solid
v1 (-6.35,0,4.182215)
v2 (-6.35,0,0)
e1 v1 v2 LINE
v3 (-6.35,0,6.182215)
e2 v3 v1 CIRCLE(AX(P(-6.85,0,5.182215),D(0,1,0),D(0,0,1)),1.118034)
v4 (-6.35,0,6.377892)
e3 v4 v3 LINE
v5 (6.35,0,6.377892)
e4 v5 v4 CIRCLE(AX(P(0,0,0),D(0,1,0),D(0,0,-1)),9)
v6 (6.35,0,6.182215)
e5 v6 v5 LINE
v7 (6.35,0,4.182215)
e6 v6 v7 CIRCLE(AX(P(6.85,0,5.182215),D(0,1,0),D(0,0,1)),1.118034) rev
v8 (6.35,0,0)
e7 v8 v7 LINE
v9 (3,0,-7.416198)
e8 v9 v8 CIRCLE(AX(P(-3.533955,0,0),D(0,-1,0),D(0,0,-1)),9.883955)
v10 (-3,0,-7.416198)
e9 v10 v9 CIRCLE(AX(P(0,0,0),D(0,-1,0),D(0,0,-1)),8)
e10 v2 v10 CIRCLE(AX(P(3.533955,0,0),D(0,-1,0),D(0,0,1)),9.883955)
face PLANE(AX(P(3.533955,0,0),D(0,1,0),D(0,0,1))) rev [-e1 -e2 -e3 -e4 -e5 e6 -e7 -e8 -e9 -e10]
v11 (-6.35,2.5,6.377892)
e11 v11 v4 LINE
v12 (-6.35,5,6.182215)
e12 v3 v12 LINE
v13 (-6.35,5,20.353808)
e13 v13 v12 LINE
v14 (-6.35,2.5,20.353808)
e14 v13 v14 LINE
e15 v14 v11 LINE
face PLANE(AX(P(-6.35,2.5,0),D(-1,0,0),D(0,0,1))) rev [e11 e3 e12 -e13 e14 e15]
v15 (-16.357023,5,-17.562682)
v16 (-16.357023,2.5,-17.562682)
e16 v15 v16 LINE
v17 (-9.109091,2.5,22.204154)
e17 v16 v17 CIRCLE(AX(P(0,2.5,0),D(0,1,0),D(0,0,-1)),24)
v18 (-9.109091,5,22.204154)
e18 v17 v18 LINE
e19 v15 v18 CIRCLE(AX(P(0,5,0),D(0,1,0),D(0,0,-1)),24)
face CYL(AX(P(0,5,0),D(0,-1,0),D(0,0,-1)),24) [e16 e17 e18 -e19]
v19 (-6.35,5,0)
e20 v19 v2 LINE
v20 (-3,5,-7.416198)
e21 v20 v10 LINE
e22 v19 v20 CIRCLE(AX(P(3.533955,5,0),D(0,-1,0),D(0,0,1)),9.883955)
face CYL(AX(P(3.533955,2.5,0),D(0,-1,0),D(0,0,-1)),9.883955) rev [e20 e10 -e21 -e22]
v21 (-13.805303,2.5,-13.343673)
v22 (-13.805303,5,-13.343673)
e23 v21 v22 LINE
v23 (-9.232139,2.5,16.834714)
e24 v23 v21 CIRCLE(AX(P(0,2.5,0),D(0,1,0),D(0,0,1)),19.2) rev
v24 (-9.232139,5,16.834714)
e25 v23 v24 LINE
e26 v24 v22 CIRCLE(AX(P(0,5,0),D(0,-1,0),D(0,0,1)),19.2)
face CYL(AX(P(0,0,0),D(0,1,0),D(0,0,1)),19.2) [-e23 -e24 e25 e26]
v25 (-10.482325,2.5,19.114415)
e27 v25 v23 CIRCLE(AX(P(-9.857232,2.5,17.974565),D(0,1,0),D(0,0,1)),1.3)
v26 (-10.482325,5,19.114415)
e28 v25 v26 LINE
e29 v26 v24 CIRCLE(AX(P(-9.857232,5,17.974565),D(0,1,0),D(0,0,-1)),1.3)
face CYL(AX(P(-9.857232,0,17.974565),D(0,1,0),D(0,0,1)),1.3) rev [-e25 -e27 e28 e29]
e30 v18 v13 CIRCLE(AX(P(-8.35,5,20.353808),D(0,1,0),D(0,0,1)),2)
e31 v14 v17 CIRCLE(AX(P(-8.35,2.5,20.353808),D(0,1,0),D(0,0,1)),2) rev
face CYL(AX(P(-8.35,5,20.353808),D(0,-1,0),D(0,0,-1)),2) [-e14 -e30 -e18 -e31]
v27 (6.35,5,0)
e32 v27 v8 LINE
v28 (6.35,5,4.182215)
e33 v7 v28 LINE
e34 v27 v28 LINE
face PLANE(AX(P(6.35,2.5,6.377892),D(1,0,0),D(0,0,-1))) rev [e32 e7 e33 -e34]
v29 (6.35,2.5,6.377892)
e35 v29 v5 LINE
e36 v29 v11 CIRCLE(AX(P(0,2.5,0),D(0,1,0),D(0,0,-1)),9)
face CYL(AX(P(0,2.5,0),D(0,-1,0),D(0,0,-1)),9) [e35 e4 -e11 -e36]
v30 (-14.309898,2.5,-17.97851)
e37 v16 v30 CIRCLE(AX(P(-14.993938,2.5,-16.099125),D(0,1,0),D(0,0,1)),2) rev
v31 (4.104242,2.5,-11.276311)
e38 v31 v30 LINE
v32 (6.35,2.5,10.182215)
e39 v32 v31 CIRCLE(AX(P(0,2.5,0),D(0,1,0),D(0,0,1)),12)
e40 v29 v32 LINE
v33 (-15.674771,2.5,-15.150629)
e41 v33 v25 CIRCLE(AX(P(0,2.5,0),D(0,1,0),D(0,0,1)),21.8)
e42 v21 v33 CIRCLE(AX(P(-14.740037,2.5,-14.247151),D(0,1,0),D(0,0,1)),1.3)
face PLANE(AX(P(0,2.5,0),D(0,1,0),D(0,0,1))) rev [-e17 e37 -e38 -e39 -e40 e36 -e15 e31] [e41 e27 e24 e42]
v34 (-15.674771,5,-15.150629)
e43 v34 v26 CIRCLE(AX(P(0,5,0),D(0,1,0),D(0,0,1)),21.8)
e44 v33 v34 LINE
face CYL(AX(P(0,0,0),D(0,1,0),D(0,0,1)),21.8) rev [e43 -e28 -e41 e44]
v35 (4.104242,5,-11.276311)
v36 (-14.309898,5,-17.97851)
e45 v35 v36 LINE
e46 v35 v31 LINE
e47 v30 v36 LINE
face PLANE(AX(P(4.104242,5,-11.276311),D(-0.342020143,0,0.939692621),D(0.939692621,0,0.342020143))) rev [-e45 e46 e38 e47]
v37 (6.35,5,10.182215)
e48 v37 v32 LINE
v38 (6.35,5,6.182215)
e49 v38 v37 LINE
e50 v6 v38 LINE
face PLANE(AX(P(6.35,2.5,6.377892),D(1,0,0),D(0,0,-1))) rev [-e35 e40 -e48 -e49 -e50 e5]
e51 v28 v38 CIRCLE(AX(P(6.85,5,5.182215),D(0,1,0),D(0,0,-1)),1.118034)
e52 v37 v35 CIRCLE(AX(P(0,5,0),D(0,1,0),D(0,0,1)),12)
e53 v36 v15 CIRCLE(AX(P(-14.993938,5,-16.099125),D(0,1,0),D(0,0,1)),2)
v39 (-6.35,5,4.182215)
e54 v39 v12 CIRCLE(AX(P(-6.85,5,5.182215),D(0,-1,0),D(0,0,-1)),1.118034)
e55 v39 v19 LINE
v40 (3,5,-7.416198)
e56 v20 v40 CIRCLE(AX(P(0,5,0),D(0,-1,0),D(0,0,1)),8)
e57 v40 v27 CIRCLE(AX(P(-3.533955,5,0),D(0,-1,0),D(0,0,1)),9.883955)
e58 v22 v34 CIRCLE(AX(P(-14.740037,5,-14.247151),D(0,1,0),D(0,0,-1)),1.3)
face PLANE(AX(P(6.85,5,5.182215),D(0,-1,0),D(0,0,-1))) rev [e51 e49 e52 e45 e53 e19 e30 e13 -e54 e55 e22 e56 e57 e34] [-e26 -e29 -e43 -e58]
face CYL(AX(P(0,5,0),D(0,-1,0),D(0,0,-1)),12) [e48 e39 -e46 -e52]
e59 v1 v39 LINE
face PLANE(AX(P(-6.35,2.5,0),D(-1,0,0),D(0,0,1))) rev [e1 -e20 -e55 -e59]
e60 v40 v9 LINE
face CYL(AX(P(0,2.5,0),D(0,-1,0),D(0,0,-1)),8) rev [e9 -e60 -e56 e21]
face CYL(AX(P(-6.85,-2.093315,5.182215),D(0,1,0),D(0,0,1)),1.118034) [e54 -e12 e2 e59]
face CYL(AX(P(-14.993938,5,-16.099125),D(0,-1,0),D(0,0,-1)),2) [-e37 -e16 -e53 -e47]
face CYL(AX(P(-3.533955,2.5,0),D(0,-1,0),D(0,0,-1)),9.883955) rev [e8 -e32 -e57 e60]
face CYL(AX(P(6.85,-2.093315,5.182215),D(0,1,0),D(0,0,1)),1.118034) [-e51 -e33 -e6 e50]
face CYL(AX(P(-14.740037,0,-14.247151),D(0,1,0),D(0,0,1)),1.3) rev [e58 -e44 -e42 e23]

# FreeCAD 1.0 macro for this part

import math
import FreeCAD as App
import Part
import Sketcher
Q = App.Units.Quantity


def edges_at(feature, points):
    """Names of the edges that pass closest to the given points."""
    edges = feature.Shape.Edges
    near = lambda p: min(range(len(edges)), key=lambda i: edges[i].distToShape(Part.Vertex(*p))[0])
    return sorted({f"Edge{near(p) + 1}" for p in points})

doc = App.newDocument("Part")
body = doc.addObject("PartDesign::Body", "Body")

sketch1 = body.newObject("Sketcher::SketchObject", "Sketch")
sketch1.AttachmentSupport = (doc.getObject("XZ_Plane"), [""])
sketch1.MapMode = "FlatFace"
sketch1.addGeometry([
    Part.LineSegment(App.Vector(-6, 6, 0), App.Vector(-6, 0, 0)),
    Part.ArcOfCircle(Part.Circle(App.Vector(4, 0, 0), App.Vector(0, 0, 1), 10), math.radians(180), math.radians(229)),
    Part.ArcOfCircle(Part.Circle(App.Vector(0, 0, 0), App.Vector(0, 0, 1), 8), math.radians(-112), math.radians(-68)),
    Part.ArcOfCircle(Part.Circle(App.Vector(-4, 0, 0), App.Vector(0, 0, 1), 10), math.radians(-49), math.radians(0)),
    Part.LineSegment(App.Vector(6, 0, 0), App.Vector(6, 6, 0)),
    Part.ArcOfCircle(Part.Circle(App.Vector(0, 0, 0), App.Vector(0, 0, 1), 9), math.radians(135), math.radians(405)),
], False)
sketch1.addConstraint([
    Sketcher.Constraint("Tangent", 0, 2, 1, 1),
    Sketcher.Constraint("Coincident", 1, 2, 2, 1),
    Sketcher.Constraint("Coincident", 2, 2, 3, 1),
    Sketcher.Constraint("Tangent", 3, 2, 4, 1),
    Sketcher.Constraint("Coincident", 4, 2, 5, 2),
    Sketcher.Constraint("Coincident", 5, 1, 0, 1),
    Sketcher.Constraint("Vertical", 0),
    Sketcher.Constraint("Vertical", 4),
    Sketcher.Constraint("Coincident", 2, 3, -1, 1),
    Sketcher.Constraint("Coincident", 5, 3, -1, 1),
    Sketcher.Constraint("Equal", 1, 3),
    Sketcher.Constraint("Symmetric", 1, 3, 3, 3, -1, 1),
    Sketcher.Constraint("PointOnObject", 1, 3, -1),
    Sketcher.Constraint("Radius", 2, 8.0),
    Sketcher.Constraint("Radius", 5, 9.0),
    Sketcher.Constraint("DistanceX", 1, 2, -1, 1, 3.0),
    Sketcher.Constraint("DistanceX", 0, 2, -1, 1, 6.35),
])
pad1 = body.newObject("PartDesign::Pad", "Pad")
pad1.Profile = sketch1
pad1.Length = 2.5
pad1.Reversed = True
body2 = doc.addObject("PartDesign::Body", "Body001")

sketch2 = body2.newObject("Sketcher::SketchObject", "Sketch001")
sketch2.AttachmentSupport = (doc.getObject("XZ_Plane001"), [""])
sketch2.MapMode = "FlatFace"
sketch2.AttachmentOffset = App.Placement(App.Vector(0, 0, -2.5), App.Rotation())
sketch2.addGeometry([
    Part.LineSegment(App.Vector(4, -11, 0), App.Vector(-15, -18, 0)),
    Part.ArcOfCircle(Part.Circle(App.Vector(0, 0, 0), App.Vector(0, 0, 1), 24), math.radians(105), math.radians(230)),
    Part.LineSegment(App.Vector(-6, 23, 0), App.Vector(-6, 0, 0)),
    Part.ArcOfCircle(Part.Circle(App.Vector(4, 0, 0), App.Vector(0, 0, 1), 10), math.radians(180), math.radians(229)),
    Part.ArcOfCircle(Part.Circle(App.Vector(0, 0, 0), App.Vector(0, 0, 1), 8), math.radians(-112), math.radians(-68)),
    Part.ArcOfCircle(Part.Circle(App.Vector(-4, 0, 0), App.Vector(0, 0, 1), 10), math.radians(-49), math.radians(0)),
    Part.LineSegment(App.Vector(6, 0, 0), App.Vector(6, 10, 0)),
    Part.ArcOfCircle(Part.Circle(App.Vector(0, 0, 0), App.Vector(0, 0, 1), 12), math.radians(-70), math.radians(58)),
], False)
sketch2.addConstraint([
    Sketcher.Constraint("Coincident", 0, 2, 1, 2),
    Sketcher.Constraint("Coincident", 1, 1, 2, 1),
    Sketcher.Constraint("Tangent", 2, 2, 3, 1),
    Sketcher.Constraint("Coincident", 3, 2, 4, 1),
    Sketcher.Constraint("Coincident", 4, 2, 5, 1),
    Sketcher.Constraint("Tangent", 5, 2, 6, 1),
    Sketcher.Constraint("Coincident", 6, 2, 7, 2),
    Sketcher.Constraint("Tangent", 7, 1, 0, 1),
    Sketcher.Constraint("Vertical", 2),
    Sketcher.Constraint("Vertical", 6),
    Sketcher.Constraint("Coincident", 1, 3, -1, 1),
    Sketcher.Constraint("Coincident", 4, 3, -1, 1),
    Sketcher.Constraint("Coincident", 7, 3, -1, 1),
    Sketcher.Constraint("Equal", 3, 5),
    Sketcher.Constraint("Symmetric", 3, 3, 5, 3, -1, 1),
    Sketcher.Constraint("PointOnObject", 3, 3, -1),
    Sketcher.Constraint("Radius", 1, 24.0),
    Sketcher.Constraint("Radius", 4, 8.0),
    Sketcher.Constraint("Radius", 7, 12.0),
    Sketcher.Constraint("Angle", 0, Q("-160 deg")),
    Sketcher.Constraint("DistanceX", 3, 2, -1, 1, 3.0),
    Sketcher.Constraint("DistanceX", 1, 1, -1, 1, 6.35),
])
pad2 = body2.newObject("PartDesign::Pad", "Pad001")
pad2.Profile = sketch2
pad2.Length = 2.5
pad2.Reversed = True
doc.recompute()

fillet = body2.newObject("PartDesign::Fillet", "Fillet")
fillet.Base = (pad2, edges_at(pad2, [(-6.35, 3.75, 23.145), (-15.427, 3.75, -18.385)]))
fillet.Radius = 2

sketch3 = body2.newObject("Sketcher::SketchObject", "Sketch002")
sketch3.AttachmentSupport = (doc.getObject("XZ_Plane001"), [""])
sketch3.MapMode = "FlatFace"
sketch3.AttachmentOffset = App.Placement(App.Vector(0, 0, -5), App.Rotation())
sketch3.addGeometry([
    Part.ArcOfCircle(Part.Circle(App.Vector(-9.9, 18, 0), App.Vector(0, 0, 1), 1.3), math.radians(-61), math.radians(119)),
    Part.ArcOfCircle(Part.Circle(App.Vector(0, 0, 0), App.Vector(0, 0, 1), 19.2), math.radians(119), math.radians(224)),
    Part.ArcOfCircle(Part.Circle(App.Vector(-14.7, -14.2, 0), App.Vector(0, 0, 1), 1.3), math.radians(-136), math.radians(44)),
    Part.ArcOfCircle(Part.Circle(App.Vector(0, 0, 0), App.Vector(0, 0, 1), 21.8), math.radians(119), math.radians(224)),
], False)
sketch3.addConstraint([
    Sketcher.Constraint("Tangent", 0, 1, 1, 1),
    Sketcher.Constraint("Tangent", 1, 2, 2, 2),
    Sketcher.Constraint("Tangent", 2, 1, 3, 2),
    Sketcher.Constraint("Tangent", 3, 1, 0, 2),
    Sketcher.Constraint("Coincident", 1, 3, -1, 1),
    Sketcher.Constraint("Coincident", 3, 3, -1, 1),
    Sketcher.Constraint("Radius", 0, 1.3),
    Sketcher.Constraint("Radius", 1, 19.2),
    Sketcher.Constraint("DistanceY", 0, 1, 3, 1, 2.279701),
    Sketcher.Constraint("DistanceY", 2, 3, -1, 1, 14.247151),
])
pocket1 = body2.newObject("PartDesign::Pocket", "Pocket")
pocket1.Profile = sketch3
pocket1.Type = "ThroughAll"
pocket1.Reversed = True
doc.recompute()

boolean = body.newObject("PartDesign::Boolean", "Boolean")
boolean.Type = "Fuse"
boolean.addObjects([body2])

sketch4 = body.newObject("Sketcher::SketchObject", "Sketch003")
sketch4.AttachmentSupport = (doc.getObject("XZ_Plane"), [""])
sketch4.MapMode = "FlatFace"
sketch4.AttachmentOffset = App.Placement(App.Vector(0, 0, -5), App.Rotation())
sketch4.addGeometry([
    Part.LineSegment(App.Vector(6.3, 6.2, 0), App.Vector(6.3, 4.2, 0)),
    Part.ArcOfCircle(Part.Circle(App.Vector(6.8, 5.2, 0), App.Vector(0, 0, 1), 1.1), math.radians(117), math.radians(243)),
], False)
sketch4.addConstraint([
    Sketcher.Constraint("Coincident", 0, 1, 1, 1),
    Sketcher.Constraint("Coincident", 1, 2, 0, 2),
    Sketcher.Constraint("Vertical", 0),
    Sketcher.Constraint("DistanceY", 0, 2, 0, 1, 2.0),
    Sketcher.Constraint("DistanceX", 0, 1, 1, 3, 0.5),
    Sketcher.Constraint("DistanceX", -1, 1, 1, 3, 6.85),
    Sketcher.Constraint("DistanceY", -1, 1, 1, 3, 5.182215),
])
pad3 = body.newObject("PartDesign::Pad", "Pad002")
pad3.Profile = sketch4
pad3.Length = 5
doc.recompute()

mirrored = body.newObject("PartDesign::Mirrored", "Mirrored")
mirrored.Originals = [pad3]
mirrored.MirrorPlane = (doc.getObject("YZ_Plane"), [""])
body.Tip = mirrored

doc.recompute()
